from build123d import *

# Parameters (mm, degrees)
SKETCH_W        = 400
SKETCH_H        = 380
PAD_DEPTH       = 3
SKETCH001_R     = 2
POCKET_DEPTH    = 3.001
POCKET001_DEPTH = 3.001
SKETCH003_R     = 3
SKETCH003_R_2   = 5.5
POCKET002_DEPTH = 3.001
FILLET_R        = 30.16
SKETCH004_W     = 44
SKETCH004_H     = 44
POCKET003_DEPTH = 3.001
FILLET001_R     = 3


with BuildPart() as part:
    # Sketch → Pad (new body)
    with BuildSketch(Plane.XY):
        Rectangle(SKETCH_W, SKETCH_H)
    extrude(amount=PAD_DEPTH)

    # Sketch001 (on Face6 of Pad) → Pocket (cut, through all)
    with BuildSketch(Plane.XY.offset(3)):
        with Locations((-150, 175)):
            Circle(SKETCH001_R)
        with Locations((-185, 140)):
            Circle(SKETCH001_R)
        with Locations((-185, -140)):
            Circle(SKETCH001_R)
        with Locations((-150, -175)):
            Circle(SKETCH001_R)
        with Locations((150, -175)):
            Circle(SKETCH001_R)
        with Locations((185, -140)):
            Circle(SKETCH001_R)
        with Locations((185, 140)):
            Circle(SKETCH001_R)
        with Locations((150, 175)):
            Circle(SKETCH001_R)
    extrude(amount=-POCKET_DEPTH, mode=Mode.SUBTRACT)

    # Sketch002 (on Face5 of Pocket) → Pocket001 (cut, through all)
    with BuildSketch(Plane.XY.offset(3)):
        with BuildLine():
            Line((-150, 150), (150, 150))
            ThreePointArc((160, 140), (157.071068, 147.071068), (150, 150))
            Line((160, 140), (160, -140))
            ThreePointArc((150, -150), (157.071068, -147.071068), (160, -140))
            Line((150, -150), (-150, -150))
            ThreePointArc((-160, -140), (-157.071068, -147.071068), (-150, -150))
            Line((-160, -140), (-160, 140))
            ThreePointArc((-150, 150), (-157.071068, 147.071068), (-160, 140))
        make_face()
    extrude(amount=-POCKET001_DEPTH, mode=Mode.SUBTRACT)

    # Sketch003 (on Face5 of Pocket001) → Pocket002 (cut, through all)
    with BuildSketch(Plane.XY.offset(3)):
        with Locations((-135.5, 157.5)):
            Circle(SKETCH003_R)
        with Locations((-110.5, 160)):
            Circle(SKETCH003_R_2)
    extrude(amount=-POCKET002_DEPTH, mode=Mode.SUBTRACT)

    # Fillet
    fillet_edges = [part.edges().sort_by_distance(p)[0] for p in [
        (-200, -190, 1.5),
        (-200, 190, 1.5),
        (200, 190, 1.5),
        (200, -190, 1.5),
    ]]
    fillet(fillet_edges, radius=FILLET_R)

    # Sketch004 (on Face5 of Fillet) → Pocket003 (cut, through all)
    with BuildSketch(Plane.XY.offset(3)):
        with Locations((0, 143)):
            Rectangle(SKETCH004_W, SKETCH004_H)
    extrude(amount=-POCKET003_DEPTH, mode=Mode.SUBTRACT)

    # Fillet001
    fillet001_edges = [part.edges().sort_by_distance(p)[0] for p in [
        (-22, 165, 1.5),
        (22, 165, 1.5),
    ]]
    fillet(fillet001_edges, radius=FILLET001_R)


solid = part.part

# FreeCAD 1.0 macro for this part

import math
import FreeCAD as App
import Part
import Sketcher


def edges_at(feature, points):
    """Names of the edges that pass closest to the given points."""
    edges = feature.Shape.Edges
    near = lambda p: min(range(len(edges)), key=lambda i: edges[i].distToShape(Part.Vertex(*p))[0])
    return sorted({f"Edge{near(p) + 1}" for p in points})


def add_polygon(sketch, points):
    """Adds a closed chain of lines whose ends are joined by coincident constraints."""
    first, n = sketch.GeometryCount, len(points)
    for a, b in zip(points, points[1:] + points[:1]):
        sketch.addGeometry(Part.LineSegment(App.Vector(*a, 0), App.Vector(*b, 0)), False)
    for i in range(n):
        sketch.addConstraint(Sketcher.Constraint("Coincident", first + i, 2, first + (i + 1) % n, 1))

doc = App.newDocument("Part")
body = doc.addObject("PartDesign::Body", "Body")

sketch1 = body.newObject("Sketcher::SketchObject", "Sketch")
sketch1.AttachmentSupport = (doc.getObject("XY_Plane"), [""])
sketch1.MapMode = "FlatFace"
add_polygon(sketch1, [(-200, 190), (-200, -190), (200, -190), (200, 190)])
sketch1.addConstraint(Sketcher.Constraint("Vertical", 0))
sketch1.addConstraint(Sketcher.Constraint("Horizontal", 1))
sketch1.addConstraint(Sketcher.Constraint("Vertical", 2))
sketch1.addConstraint(Sketcher.Constraint("Horizontal", 3))
sketch1.addConstraint(Sketcher.Constraint("Symmetric", 0, 2, 2, 2, -1, 1))
sketch1.addConstraint(Sketcher.Constraint("DistanceX", 1, 1, 1, 2, 400.0))
sketch1.addConstraint(Sketcher.Constraint("DistanceY", 0, 2, 0, 1, 380.0))
pad1 = body.newObject("PartDesign::Pad", "Pad")
pad1.Profile = sketch1
pad1.Length = 3

sketch2 = body.newObject("Sketcher::SketchObject", "Sketch001")
sketch2.AttachmentSupport = (doc.getObject("XY_Plane"), [""])
sketch2.MapMode = "FlatFace"
sketch2.AttachmentOffset = App.Placement(App.Vector(0, 0, 3), App.Rotation())
sketch2.addGeometry(Part.Circle(App.Vector(-150, 175, 0), App.Vector(0, 0, 1), 2), False)
sketch2.addGeometry(Part.Circle(App.Vector(-185, 140, 0), App.Vector(0, 0, 1), 2), False)
sketch2.addGeometry(Part.Circle(App.Vector(-185, -140, 0), App.Vector(0, 0, 1), 2), False)
sketch2.addGeometry(Part.Circle(App.Vector(-150, -175, 0), App.Vector(0, 0, 1), 2), False)
sketch2.addGeometry(Part.Circle(App.Vector(150, -175, 0), App.Vector(0, 0, 1), 2), False)
sketch2.addGeometry(Part.Circle(App.Vector(185, -140, 0), App.Vector(0, 0, 1), 2), False)
sketch2.addGeometry(Part.Circle(App.Vector(185, 140, 0), App.Vector(0, 0, 1), 2), False)
sketch2.addGeometry(Part.Circle(App.Vector(150, 175, 0), App.Vector(0, 0, 1), 2), False)
sketch2.addConstraint(Sketcher.Constraint("Equal", 0, 1))
sketch2.addConstraint(Sketcher.Constraint("Equal", 1, 2))
sketch2.addConstraint(Sketcher.Constraint("Equal", 2, 3))
sketch2.addConstraint(Sketcher.Constraint("Equal", 3, 4))
sketch2.addConstraint(Sketcher.Constraint("Equal", 4, 5))
sketch2.addConstraint(Sketcher.Constraint("Equal", 5, 6))
sketch2.addConstraint(Sketcher.Constraint("Equal", 6, 7))
sketch2.addConstraint(Sketcher.Constraint("Symmetric", 0, 3, 4, 3, -1, 1))
sketch2.addConstraint(Sketcher.Constraint("Symmetric", 1, 3, 5, 3, -1, 1))
sketch2.addConstraint(Sketcher.Constraint("Symmetric", 2, 3, 6, 3, -1, 1))
sketch2.addConstraint(Sketcher.Constraint("Symmetric", 3, 3, 7, 3, -1, 1))
sketch2.addConstraint(Sketcher.Constraint("Symmetric", 3, 3, 4, 3, -2))
sketch2.addConstraint(Sketcher.Constraint("Symmetric", 2, 3, 5, 3, -2))
sketch2.addConstraint(Sketcher.Constraint("Diameter", 0, 4.0))
sketch2.addConstraint(Sketcher.Constraint("DistanceX", 0, 3, -1, 1, 150.0))
sketch2.addConstraint(Sketcher.Constraint("DistanceY", -1, 1, 0, 3, 175.0))
sketch2.addConstraint(Sketcher.Constraint("DistanceX", 1, 3, -1, 1, 185.0))
sketch2.addConstraint(Sketcher.Constraint("DistanceY", -1, 1, 1, 3, 140.0))
pocket1 = body.newObject("PartDesign::Pocket", "Pocket")
pocket1.Profile = sketch2
pocket1.Type = "ThroughAll"

sketch3 = body.newObject("Sketcher::SketchObject", "Sketch002")
sketch3.AttachmentSupport = (doc.getObject("XY_Plane"), [""])
sketch3.MapMode = "FlatFace"
sketch3.AttachmentOffset = App.Placement(App.Vector(0, 0, 3), App.Rotation())
sketch3.addGeometry(Part.LineSegment(App.Vector(150, 150, 0), App.Vector(-150, 150, 0)), False)
sketch3.addGeometry(Part.ArcOfCircle(Part.Circle(App.Vector(-150, 140, 0), App.Vector(0, 0, 1), 10), math.radians(90), math.radians(180)), False)
sketch3.addGeometry(Part.LineSegment(App.Vector(-160, 140, 0), App.Vector(-160, -140, 0)), False)
sketch3.addGeometry(Part.ArcOfCircle(Part.Circle(App.Vector(-150, -140, 0), App.Vector(0, 0, 1), 10), math.radians(180), math.radians(270)), False)
sketch3.addGeometry(Part.LineSegment(App.Vector(-150, -150, 0), App.Vector(150, -150, 0)), False)
sketch3.addGeometry(Part.ArcOfCircle(Part.Circle(App.Vector(150, -140, 0), App.Vector(0, 0, 1), 10), math.radians(-90), math.radians(0)), False)
sketch3.addGeometry(Part.LineSegment(App.Vector(160, -140, 0), App.Vector(160, 140, 0)), False)
sketch3.addGeometry(Part.ArcOfCircle(Part.Circle(App.Vector(150, 140, 0), App.Vector(0, 0, 1), 10), math.radians(0), math.radians(90)), False)
sketch3.addConstraint(Sketcher.Constraint("Tangent", 0, 2, 1, 1))
sketch3.addConstraint(Sketcher.Constraint("Tangent", 1, 2, 2, 1))
sketch3.addConstraint(Sketcher.Constraint("Tangent", 2, 2, 3, 1))
sketch3.addConstraint(Sketcher.Constraint("Tangent", 3, 2, 4, 1))
sketch3.addConstraint(Sketcher.Constraint("Tangent", 4, 2, 5, 1))
sketch3.addConstraint(Sketcher.Constraint("Tangent", 5, 2, 6, 1))
sketch3.addConstraint(Sketcher.Constraint("Tangent", 6, 2, 7, 1))
sketch3.addConstraint(Sketcher.Constraint("Tangent", 7, 2, 0, 1))
sketch3.addConstraint(Sketcher.Constraint("Horizontal", 0))
sketch3.addConstraint(Sketcher.Constraint("Vertical", 2))
sketch3.addConstraint(Sketcher.Constraint("Horizontal", 4))
sketch3.addConstraint(Sketcher.Constraint("Vertical", 6))
sketch3.addConstraint(Sketcher.Constraint("Equal", 1, 3))
sketch3.addConstraint(Sketcher.Constraint("Equal", 3, 5))
sketch3.addConstraint(Sketcher.Constraint("Equal", 5, 7))
sketch3.addConstraint(Sketcher.Constraint("Symmetric", 1, 3, 5, 3, -1, 1))
sketch3.addConstraint(Sketcher.Constraint("Radius", 1, 9.999999))
sketch3.addConstraint(Sketcher.Constraint("DistanceX", 0, 2, 0, 1, 300.0))
sketch3.addConstraint(Sketcher.Constraint("DistanceY", 2, 2, 2, 1, 280.0))
pocket2 = body.newObject("PartDesign::Pocket", "Pocket001")
pocket2.Profile = sketch3
pocket2.Type = "ThroughAll"

sketch4 = body.newObject("Sketcher::SketchObject", "Sketch003")
sketch4.AttachmentSupport = (doc.getObject("XY_Plane"), [""])
sketch4.MapMode = "FlatFace"
sketch4.AttachmentOffset = App.Placement(App.Vector(0, 0, 3), App.Rotation())
sketch4.addGeometry(Part.Circle(App.Vector(-135.5, 157.5, 0), App.Vector(0, 0, 1), 3), False)
sketch4.addGeometry(Part.Circle(App.Vector(-110.5, 160, 0), App.Vector(0, 0, 1), 5.5), False)
sketch4.addConstraint(Sketcher.Constraint("Diameter", 0, 6.0))
sketch4.addConstraint(Sketcher.Constraint("Diameter", 1, 11.0))
sketch4.addConstraint(Sketcher.Constraint("DistanceY", -1, 1, 1, 3, 160.0))
sketch4.addConstraint(Sketcher.Constraint("DistanceX", 0, 3, 1, 3, 25.0))
sketch4.addConstraint(Sketcher.Constraint("DistanceX", 0, 3, -1, 1, 135.5))
sketch4.addConstraint(Sketcher.Constraint("DistanceY", -1, 1, 0, 3, 157.5))
pocket3 = body.newObject("PartDesign::Pocket", "Pocket002")
pocket3.Profile = sketch4
pocket3.Type = "ThroughAll"
doc.recompute()

fillet = body.newObject("PartDesign::Fillet", "Fillet")
fillet.Base = (pocket3, edges_at(pocket3, [
    (-200, -190, 1.5),
    (-200, 190, 1.5),
    (200, 190, 1.5),
    (200, -190, 1.5),
]))
fillet.Radius = 30.16

sketch5 = body.newObject("Sketcher::SketchObject", "Sketch004")
sketch5.AttachmentSupport = (doc.getObject("XY_Plane"), [""])
sketch5.MapMode = "FlatFace"
sketch5.AttachmentOffset = App.Placement(App.Vector(0, 0, 3), App.Rotation())
add_polygon(sketch5, [(-22, 165), (-22, 121), (22, 121), (22, 165)])
sketch5.addConstraint(Sketcher.Constraint("Vertical", 0))
sketch5.addConstraint(Sketcher.Constraint("Horizontal", 1))
sketch5.addConstraint(Sketcher.Constraint("Vertical", 2))
sketch5.addConstraint(Sketcher.Constraint("Horizontal", 3))
sketch5.addConstraint(Sketcher.Constraint("Equal", 3, 0))
sketch5.addConstraint(Sketcher.Constraint("DistanceX", 1, 1, 1, 2, 44.0))
sketch5.addConstraint(Sketcher.Constraint("DistanceX", 0, 2, -1, 1, 22.0))
sketch5.addConstraint(Sketcher.Constraint("DistanceY", -1, 1, 0, 2, 121.0))
pocket4 = body.newObject("PartDesign::Pocket", "Pocket003")
pocket4.Profile = sketch5
pocket4.Type = "ThroughAll"
doc.recompute()

fillet2 = body.newObject("PartDesign::Fillet", "Fillet001")
fillet2.Base = (pocket4, edges_at(pocket4, [(-22, 165, 1.5), (22, 165, 1.5)]))
fillet2.Radius = 3

doc.recompute()
